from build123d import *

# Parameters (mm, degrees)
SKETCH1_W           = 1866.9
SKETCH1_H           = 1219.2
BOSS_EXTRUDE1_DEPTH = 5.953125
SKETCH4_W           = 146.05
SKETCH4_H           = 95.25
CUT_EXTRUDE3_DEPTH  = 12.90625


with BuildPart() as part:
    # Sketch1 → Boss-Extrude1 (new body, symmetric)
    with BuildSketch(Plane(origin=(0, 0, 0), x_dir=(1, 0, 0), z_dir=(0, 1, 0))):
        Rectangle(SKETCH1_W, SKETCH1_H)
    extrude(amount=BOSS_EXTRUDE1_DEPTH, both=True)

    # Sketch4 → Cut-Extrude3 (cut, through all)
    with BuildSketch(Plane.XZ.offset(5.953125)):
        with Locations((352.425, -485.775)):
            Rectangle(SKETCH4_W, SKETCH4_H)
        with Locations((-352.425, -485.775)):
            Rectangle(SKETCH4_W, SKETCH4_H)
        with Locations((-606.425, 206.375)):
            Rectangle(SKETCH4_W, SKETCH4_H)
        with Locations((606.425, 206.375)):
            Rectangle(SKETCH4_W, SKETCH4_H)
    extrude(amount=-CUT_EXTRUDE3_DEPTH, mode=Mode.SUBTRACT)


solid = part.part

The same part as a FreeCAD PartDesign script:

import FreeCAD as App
import Part
import Sketcher
from FreeCAD import Vector
Q = App.Units.Quantity


def add_polygon(sketch, points):
    """Adds a closed chain of lines whose ends are joined by coincident constraints."""
    first, n = sketch.GeometryCount, len(points)
    for a, b in zip(points, points[1:] + points[:1]):
        sketch.addGeometry(Part.LineSegment(App.Vector(*a, 0), App.Vector(*b, 0)), False)
    for i in range(n):
        sketch.addConstraint(Sketcher.Constraint("Coincident", first + i, 2, first + (i + 1) % n, 1))

doc = App.newDocument("Part")
body = doc.addObject("PartDesign::Body", "Body")

# Sketch on XZ plane
sketch1 = body.newObject("Sketcher::SketchObject", "Sketch")
sketch1.AttachmentSupport = (doc.getObject("XZ_Plane"), [""])
sketch1.MapMode = "FlatFace"
add_polygon(sketch1, [(-933, -610), (-933, 610), (933, 610), (933, -610)])  # lines 0-3
sketch1.addConstraint([
    Sketcher.Constraint("Vertical", 0),
    Sketcher.Constraint("Horizontal", 1),
    Sketcher.Constraint("Vertical", 2),
    Sketcher.Constraint("Horizontal", 3),
    Sketcher.Constraint("Symmetric", 0, 2, 2, 2, -1, 1),
    Sketcher.Constraint("DistanceY", 0, 1, 0, 2, Q("48 in")),
    Sketcher.Constraint("DistanceX", 1, 1, 1, 2, Q("73.5 in")),
])
pad1 = body.newObject("PartDesign::Pad", "Pad")
pad1.Profile = sketch1
pad1.Length = Q("0.46875 in")
pad1.Midplane = True

# Sketch on XZ plane
sketch2 = body.newObject("Sketcher::SketchObject", "Sketch001")
sketch2.AttachmentSupport = (doc.getObject("XZ_Plane"), [""])
sketch2.MapMode = "FlatFace"
sketch2.AttachmentOffset = App.Placement(Vector(0, 0, 0.234375 * 25.4), App.Rotation())
add_polygon(sketch2, [(279, -438), (279, -533), (425, -533), (425, -438)])  # lines 0-3
add_polygon(sketch2, [(-425, -438), (-425, -533), (-279, -533), (-279, -438)])  # lines 4-7
add_polygon(sketch2, [(-679, 254), (-679, 159), (-533, 159), (-533, 254)])  # lines 8-11
add_polygon(sketch2, [(533, 254), (533, 159), (679, 159), (679, 254)])  # lines 12-15
sketch2.addConstraint([
    Sketcher.Constraint("Vertical", 0),
    Sketcher.Constraint("Horizontal", 1),
    Sketcher.Constraint("Vertical", 2),
    Sketcher.Constraint("Horizontal", 3),
    Sketcher.Constraint("Vertical", 4),
    Sketcher.Constraint("Horizontal", 5),
    Sketcher.Constraint("Vertical", 6),
    Sketcher.Constraint("Horizontal", 7),
    Sketcher.Constraint("Vertical", 8),
    Sketcher.Constraint("Horizontal", 9),
    Sketcher.Constraint("Vertical", 10),
    Sketcher.Constraint("Horizontal", 11),
    Sketcher.Constraint("Vertical", 12),
    Sketcher.Constraint("Horizontal", 13),
    Sketcher.Constraint("Vertical", 14),
    Sketcher.Constraint("Horizontal", 15),
    Sketcher.Constraint("Symmetric", 1, 2, 4, 2, -2),
    Sketcher.Constraint("Symmetric", 3, 2, 6, 2, -2),
    Sketcher.Constraint("Symmetric", 9, 2, 12, 2, -2),
    Sketcher.Constraint("Symmetric", 11, 2, 14, 2, -2),
    Sketcher.Constraint("Equal", 7, 9),
    Sketcher.Constraint("Equal", 6, 8),
    Sketcher.Constraint("DistanceX", -1, 1, 0, 2, Q("11 in")),
    Sketcher.Constraint("DistanceY", 0, 2, -1, 1, Q("21 in")),
    Sketcher.Constraint("DistanceX", 9, 2, -1, 1, Q("21 in")),
    Sketcher.Constraint("DistanceY", -1, 1, 10, 2, Q("10 in")),
    Sketcher.Constraint("DistanceX", 1, 1, 1, 2, Q("5.75 in")),
    Sketcher.Constraint("DistanceY", 0, 2, 0, 1, Q("3.75 in")),
])
pocket1 = body.newObject("PartDesign::Pocket", "Pocket")
pocket1.Profile = sketch2
pocket1.Type = "ThroughAll"

doc.recompute()
